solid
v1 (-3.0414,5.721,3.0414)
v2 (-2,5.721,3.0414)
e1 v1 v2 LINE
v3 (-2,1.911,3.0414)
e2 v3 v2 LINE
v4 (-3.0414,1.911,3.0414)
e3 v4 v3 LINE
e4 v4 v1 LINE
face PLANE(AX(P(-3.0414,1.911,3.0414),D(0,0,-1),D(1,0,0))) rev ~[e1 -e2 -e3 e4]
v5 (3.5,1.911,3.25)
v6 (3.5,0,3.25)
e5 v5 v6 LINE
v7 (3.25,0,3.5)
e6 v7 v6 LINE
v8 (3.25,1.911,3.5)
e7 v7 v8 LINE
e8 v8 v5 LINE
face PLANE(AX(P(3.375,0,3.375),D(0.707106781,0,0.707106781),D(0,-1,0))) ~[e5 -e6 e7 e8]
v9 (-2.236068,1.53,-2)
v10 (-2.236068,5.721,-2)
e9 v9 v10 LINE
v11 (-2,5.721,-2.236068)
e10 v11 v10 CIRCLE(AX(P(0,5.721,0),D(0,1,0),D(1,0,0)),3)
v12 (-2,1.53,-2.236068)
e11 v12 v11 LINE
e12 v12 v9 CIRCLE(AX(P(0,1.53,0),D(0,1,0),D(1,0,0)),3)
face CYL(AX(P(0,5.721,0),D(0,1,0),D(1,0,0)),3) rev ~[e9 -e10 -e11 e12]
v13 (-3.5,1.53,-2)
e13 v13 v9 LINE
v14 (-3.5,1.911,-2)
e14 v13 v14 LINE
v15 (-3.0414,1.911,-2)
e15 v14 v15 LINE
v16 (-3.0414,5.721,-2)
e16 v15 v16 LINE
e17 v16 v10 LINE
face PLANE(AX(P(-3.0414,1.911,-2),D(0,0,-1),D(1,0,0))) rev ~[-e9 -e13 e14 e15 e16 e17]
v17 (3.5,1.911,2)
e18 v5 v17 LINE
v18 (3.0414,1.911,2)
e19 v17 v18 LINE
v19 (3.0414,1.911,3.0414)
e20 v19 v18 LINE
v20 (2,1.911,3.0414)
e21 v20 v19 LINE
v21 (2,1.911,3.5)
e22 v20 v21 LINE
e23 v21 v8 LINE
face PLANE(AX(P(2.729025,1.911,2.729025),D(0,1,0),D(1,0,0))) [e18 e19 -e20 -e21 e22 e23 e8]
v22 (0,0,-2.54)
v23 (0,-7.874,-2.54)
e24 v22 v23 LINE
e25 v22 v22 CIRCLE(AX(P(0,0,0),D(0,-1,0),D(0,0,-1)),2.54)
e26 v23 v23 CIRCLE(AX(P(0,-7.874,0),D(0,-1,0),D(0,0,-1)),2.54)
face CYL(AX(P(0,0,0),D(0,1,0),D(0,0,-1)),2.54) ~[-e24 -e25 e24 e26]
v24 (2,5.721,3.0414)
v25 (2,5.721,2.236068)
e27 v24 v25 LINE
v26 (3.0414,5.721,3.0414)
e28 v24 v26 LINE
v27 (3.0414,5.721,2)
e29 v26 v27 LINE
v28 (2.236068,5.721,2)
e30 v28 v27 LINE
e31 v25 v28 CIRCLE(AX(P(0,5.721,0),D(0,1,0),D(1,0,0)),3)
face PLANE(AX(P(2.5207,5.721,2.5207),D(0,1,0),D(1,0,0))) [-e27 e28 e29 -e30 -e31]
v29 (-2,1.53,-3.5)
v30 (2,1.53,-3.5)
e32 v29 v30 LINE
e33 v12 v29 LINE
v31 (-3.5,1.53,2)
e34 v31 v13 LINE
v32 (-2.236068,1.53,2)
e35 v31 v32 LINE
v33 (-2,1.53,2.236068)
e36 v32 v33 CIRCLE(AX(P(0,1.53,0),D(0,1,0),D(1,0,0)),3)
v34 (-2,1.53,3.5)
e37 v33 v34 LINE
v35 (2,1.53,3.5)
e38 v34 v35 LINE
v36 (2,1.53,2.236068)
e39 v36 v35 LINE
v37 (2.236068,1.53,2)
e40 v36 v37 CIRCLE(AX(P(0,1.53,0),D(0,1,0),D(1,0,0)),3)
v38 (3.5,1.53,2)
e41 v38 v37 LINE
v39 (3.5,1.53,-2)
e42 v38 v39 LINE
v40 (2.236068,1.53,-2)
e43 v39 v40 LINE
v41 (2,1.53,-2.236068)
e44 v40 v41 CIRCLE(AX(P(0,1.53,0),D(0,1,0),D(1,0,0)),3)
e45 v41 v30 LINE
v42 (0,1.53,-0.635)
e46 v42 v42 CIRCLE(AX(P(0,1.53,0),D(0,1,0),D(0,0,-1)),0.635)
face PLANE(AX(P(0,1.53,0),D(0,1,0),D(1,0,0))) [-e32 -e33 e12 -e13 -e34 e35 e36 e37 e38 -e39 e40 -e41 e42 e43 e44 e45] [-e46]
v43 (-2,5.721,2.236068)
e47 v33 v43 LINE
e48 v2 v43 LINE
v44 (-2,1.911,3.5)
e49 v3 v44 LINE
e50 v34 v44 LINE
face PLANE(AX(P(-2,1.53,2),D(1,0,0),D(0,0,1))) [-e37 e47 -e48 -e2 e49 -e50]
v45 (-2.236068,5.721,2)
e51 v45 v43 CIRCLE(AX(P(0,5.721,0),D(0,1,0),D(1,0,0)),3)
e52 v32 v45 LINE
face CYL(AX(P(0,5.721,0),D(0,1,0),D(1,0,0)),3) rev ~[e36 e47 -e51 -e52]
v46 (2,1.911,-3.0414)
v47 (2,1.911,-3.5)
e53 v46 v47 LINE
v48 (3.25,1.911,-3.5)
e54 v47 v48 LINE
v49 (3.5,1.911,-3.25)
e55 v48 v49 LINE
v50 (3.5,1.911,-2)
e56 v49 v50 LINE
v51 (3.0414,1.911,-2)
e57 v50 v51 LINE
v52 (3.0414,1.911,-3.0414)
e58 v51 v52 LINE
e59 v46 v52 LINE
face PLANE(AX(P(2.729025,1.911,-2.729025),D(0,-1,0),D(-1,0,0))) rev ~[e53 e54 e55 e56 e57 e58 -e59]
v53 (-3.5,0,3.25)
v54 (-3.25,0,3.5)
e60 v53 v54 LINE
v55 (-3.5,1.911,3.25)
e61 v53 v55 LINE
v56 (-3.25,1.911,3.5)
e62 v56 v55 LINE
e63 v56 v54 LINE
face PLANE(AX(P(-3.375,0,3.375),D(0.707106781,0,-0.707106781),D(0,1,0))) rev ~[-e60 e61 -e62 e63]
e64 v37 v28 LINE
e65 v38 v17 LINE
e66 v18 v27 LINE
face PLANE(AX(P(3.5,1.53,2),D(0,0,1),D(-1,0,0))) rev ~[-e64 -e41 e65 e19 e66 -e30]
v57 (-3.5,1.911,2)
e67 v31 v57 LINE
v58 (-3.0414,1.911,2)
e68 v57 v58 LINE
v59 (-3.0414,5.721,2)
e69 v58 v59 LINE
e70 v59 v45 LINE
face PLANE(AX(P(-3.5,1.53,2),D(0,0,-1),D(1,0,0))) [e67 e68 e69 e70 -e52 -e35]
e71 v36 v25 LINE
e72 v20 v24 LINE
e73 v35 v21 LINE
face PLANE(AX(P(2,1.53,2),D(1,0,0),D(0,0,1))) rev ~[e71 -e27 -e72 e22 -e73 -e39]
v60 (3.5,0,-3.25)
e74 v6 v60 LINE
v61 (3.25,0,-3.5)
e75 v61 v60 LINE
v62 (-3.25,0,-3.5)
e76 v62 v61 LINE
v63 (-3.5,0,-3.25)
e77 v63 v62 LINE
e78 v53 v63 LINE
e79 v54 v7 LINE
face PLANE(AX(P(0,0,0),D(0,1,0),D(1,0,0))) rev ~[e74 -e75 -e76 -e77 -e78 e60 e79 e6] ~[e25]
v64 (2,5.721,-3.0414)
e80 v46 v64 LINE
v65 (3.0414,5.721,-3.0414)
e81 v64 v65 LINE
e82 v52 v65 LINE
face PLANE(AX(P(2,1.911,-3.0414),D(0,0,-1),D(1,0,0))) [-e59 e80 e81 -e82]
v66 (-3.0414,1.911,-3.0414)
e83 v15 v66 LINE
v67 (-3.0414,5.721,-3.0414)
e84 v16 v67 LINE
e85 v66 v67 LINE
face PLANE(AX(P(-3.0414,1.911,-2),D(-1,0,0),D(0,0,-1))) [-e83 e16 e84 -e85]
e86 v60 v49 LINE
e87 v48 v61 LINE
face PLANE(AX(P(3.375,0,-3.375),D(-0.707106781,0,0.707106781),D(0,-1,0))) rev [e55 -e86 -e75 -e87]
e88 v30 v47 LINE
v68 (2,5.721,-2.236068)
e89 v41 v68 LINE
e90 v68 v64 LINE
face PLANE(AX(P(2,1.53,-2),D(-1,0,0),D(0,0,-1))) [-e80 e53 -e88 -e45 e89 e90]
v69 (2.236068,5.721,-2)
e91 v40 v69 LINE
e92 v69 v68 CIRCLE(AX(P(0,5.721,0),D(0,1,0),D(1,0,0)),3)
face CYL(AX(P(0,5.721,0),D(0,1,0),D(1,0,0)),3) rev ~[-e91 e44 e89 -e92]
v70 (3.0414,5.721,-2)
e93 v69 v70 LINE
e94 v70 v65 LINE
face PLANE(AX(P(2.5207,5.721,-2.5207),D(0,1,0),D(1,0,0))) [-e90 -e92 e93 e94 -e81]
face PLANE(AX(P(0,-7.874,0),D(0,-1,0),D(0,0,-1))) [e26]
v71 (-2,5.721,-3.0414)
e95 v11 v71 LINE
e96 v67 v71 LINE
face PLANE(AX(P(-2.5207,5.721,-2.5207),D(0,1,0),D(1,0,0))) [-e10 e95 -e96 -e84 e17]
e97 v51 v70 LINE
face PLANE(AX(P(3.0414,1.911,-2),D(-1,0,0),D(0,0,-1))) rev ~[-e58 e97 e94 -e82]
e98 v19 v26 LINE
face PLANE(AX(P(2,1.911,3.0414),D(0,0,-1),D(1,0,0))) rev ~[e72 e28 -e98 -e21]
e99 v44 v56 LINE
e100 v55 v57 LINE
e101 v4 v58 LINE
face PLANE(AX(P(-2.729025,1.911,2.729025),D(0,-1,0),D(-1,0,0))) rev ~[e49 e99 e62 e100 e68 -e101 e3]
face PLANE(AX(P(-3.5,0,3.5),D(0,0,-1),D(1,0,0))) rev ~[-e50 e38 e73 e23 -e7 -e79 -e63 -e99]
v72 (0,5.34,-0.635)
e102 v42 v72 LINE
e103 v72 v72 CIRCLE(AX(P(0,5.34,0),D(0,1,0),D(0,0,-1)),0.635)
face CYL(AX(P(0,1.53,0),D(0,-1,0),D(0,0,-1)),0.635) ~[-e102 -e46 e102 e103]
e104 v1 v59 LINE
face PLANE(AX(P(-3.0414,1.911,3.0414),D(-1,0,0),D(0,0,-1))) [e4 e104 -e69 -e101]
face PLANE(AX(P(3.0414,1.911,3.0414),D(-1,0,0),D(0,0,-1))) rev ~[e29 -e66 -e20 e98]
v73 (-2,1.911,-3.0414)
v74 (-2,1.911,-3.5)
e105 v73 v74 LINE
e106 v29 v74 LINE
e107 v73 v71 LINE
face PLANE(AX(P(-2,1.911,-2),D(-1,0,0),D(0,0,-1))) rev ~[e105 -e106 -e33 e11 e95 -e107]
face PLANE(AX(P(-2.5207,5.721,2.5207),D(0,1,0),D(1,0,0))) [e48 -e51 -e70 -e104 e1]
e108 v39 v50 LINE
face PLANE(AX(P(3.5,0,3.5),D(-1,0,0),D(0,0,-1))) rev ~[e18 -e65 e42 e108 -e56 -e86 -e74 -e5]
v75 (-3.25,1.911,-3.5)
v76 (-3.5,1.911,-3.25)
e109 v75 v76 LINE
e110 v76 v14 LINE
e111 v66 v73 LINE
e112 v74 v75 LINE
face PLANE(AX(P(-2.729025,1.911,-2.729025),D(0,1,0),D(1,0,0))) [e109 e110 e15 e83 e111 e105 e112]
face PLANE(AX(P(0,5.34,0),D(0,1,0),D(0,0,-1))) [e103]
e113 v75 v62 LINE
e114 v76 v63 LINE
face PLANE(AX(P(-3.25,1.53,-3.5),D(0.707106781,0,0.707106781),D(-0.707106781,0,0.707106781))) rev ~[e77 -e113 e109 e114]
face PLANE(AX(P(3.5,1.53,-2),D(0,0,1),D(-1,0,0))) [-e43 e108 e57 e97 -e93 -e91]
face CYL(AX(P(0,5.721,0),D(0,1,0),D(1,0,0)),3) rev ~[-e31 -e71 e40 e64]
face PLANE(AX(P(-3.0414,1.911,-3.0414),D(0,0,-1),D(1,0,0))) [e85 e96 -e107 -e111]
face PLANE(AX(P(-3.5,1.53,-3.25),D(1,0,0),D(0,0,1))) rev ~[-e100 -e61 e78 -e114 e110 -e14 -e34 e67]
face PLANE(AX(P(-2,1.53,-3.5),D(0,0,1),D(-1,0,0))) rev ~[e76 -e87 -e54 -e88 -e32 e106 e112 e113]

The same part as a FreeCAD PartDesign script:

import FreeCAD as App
import Part
import Sketcher
Q = App.Units.Quantity


def edges_at(feature, points):
    """Names of the edges that pass closest to the given points."""
    edges = feature.Shape.Edges
    near = lambda p: min(range(len(edges)), key=lambda i: edges[i].distToShape(Part.Vertex(*p))[0])
    return sorted({f"Edge{near(p) + 1}" for p in points})

doc = App.newDocument("Part")
body = doc.addObject("PartDesign::Body", "Body")

# Sketch on XZ plane
sketch1 = body.newObject("Sketcher::SketchObject", "Sketch")
sketch1.AttachmentSupport = (doc.getObject("XZ_Plane"), [""])
sketch1.MapMode = "FlatFace"
sketch1.addGeometry(Part.LineSegment(App.Vector(-4, -4, 0), App.Vector(-4, 4, 0)), False)
sketch1.addGeometry(Part.LineSegment(App.Vector(-4, 4, 0), App.Vector(4, 4, 0)), False)
sketch1.addGeometry(Part.LineSegment(App.Vector(4, 4, 0), App.Vector(4, -4, 0)), False)
sketch1.addGeometry(Part.LineSegment(App.Vector(4, -4, 0), App.Vector(-4, -4, 0)), False)
sketch1.addConstraint(Sketcher.Constraint("Coincident", 0, 2, 1, 1))
sketch1.addConstraint(Sketcher.Constraint("Coincident", 1, 2, 2, 1))
sketch1.addConstraint(Sketcher.Constraint("Coincident", 2, 2, 3, 1))
sketch1.addConstraint(Sketcher.Constraint("Coincident", 3, 2, 0, 1))
sketch1.addConstraint(Sketcher.Constraint("Vertical", 0))
sketch1.addConstraint(Sketcher.Constraint("Horizontal", 1))
sketch1.addConstraint(Sketcher.Constraint("Vertical", 2))
sketch1.addConstraint(Sketcher.Constraint("Horizontal", 3))
sketch1.addConstraint(Sketcher.Constraint("Symmetric", 0, 2, 2, 2, -1, 1))
sketch1.addConstraint(Sketcher.Constraint("Equal", 3, 0))
sketch1.addConstraint(Sketcher.Constraint("DistanceX", 1, 1, 1, 2, 7.0))
pad1 = body.newObject("PartDesign::Pad", "Pad")
pad1.Profile = sketch1
pad1.Length = 1.53
pad1.Reversed = True

# Sketch on XZ plane
sketch2 = body.newObject("Sketcher::SketchObject", "Sketch001")
sketch2.AttachmentSupport = (doc.getObject("XZ_Plane"), [""])
sketch2.MapMode = "FlatFace"
sketch2.addGeometry(Part.Circle(App.Vector(0, 0, 0), App.Vector(0, 0, 1), 2.5), False)
sketch2.addConstraint(Sketcher.Constraint("Coincident", 0, 3, -1, 1))
sketch2.addConstraint(Sketcher.Constraint("Diameter", 0, Q("0.2 in")))
pad2 = body.newObject("PartDesign::Pad", "Pad001")
pad2.Profile = sketch2
pad2.Length = Q("0.31 in")

# Sketch on XZ plane
sketch3 = body.newObject("Sketcher::SketchObject", "Sketch002")
sketch3.AttachmentSupport = (doc.getObject("XZ_Plane"), [""])
sketch3.MapMode = "FlatFace"
sketch3.AttachmentOffset = App.Placement(App.Vector(0, 0, -1.53), App.Rotation())
sketch3.addGeometry(Part.Circle(App.Vector(0, 0, 0), App.Vector(0, 0, 1), 0.6), False)
sketch3.addConstraint(Sketcher.Constraint("Coincident", 0, 3, -1, 1))
sketch3.addConstraint(Sketcher.Constraint("Diameter", 0, Q("0.05 in")))
pad3 = body.newObject("PartDesign::Pad", "Pad002")
pad3.Profile = sketch3
pad3.Length = Q("0.15 in")
pad3.Reversed = True
doc.recompute()

chamfer = body.newObject("PartDesign::Chamfer", "Chamfer")
chamfer.Base = (pad3, edges_at(pad3, [
    (3.5, 0.765, 3.5),
    (-3.5, 0.765, 3.5),
    (-3.5, 0.765, -3.5),
    (3.5, 0.765, -3.5),
]))
chamfer.Size = 0.25

# Sketch on XZ plane
sketch4 = body.newObject("Sketcher::SketchObject", "Sketch003")
sketch4.AttachmentSupport = (doc.getObject("XZ_Plane"), [""])
sketch4.MapMode = "FlatFace"
sketch4.AttachmentOffset = App.Placement(App.Vector(0, 0, -1.53), App.Rotation())
sketch4.addGeometry(Part.LineSegment(App.Vector(-3.5, -2, 0), App.Vector(-2, -2, 0)), False)
sketch4.addGeometry(Part.LineSegment(App.Vector(-2, -2, 0), App.Vector(-2, -3.5, 0)), False)
sketch4.addGeometry(Part.LineSegment(App.Vector(-2, -3.5, 0), App.Vector(-3.25, -3.5, 0)), False)
sketch4.addGeometry(Part.LineSegment(App.Vector(-3.25, -3.5, 0), App.Vector(-3.5, -3.25, 0)), False)
sketch4.addGeometry(Part.LineSegment(App.Vector(-3.5, -3.25, 0), App.Vector(-3.5, -2, 0)), False)
sketch4.addGeometry(Part.LineSegment(App.Vector(3.5, -2, 0), App.Vector(3.5, -3.25, 0)), False)
sketch4.addGeometry(Part.LineSegment(App.Vector(3.5, -3.25, 0), App.Vector(3.25, -3.5, 0)), False)
sketch4.addGeometry(Part.LineSegment(App.Vector(3.25, -3.5, 0), App.Vector(2, -3.5, 0)), False)
sketch4.addGeometry(Part.LineSegment(App.Vector(2, -3.5, 0), App.Vector(2, -2, 0)), False)
sketch4.addGeometry(Part.LineSegment(App.Vector(2, -2, 0), App.Vector(3.5, -2, 0)), False)
sketch4.addGeometry(Part.LineSegment(App.Vector(3.5, 2, 0), App.Vector(2, 2, 0)), False)
sketch4.addGeometry(Part.LineSegment(App.Vector(2, 2, 0), App.Vector(2, 3.5, 0)), False)
sketch4.addGeometry(Part.LineSegment(App.Vector(2, 3.5, 0), App.Vector(3.25, 3.5, 0)), False)
sketch4.addGeometry(Part.LineSegment(App.Vector(3.25, 3.5, 0), App.Vector(3.5, 3.25, 0)), False)
sketch4.addGeometry(Part.LineSegment(App.Vector(3.5, 3.25, 0), App.Vector(3.5, 2, 0)), False)
sketch4.addGeometry(Part.LineSegment(App.Vector(-3.5, 2, 0), App.Vector(-3.5, 3.25, 0)), False)
sketch4.addGeometry(Part.LineSegment(App.Vector(-3.5, 3.25, 0), App.Vector(-3.25, 3.5, 0)), False)
sketch4.addGeometry(Part.LineSegment(App.Vector(-3.25, 3.5, 0), App.Vector(-2, 3.5, 0)), False)
sketch4.addGeometry(Part.LineSegment(App.Vector(-2, 3.5, 0), App.Vector(-2, 2, 0)), False)
sketch4.addGeometry(Part.LineSegment(App.Vector(-2, 2, 0), App.Vector(-3.5, 2, 0)), False)
sketch4.addConstraint(Sketcher.Constraint("Coincident", 0, 2, 1, 1))
sketch4.addConstraint(Sketcher.Constraint("Coincident", 1, 2, 2, 1))
sketch4.addConstraint(Sketcher.Constraint("Coincident", 2, 2, 3, 1))
sketch4.addConstraint(Sketcher.Constraint("Coincident", 3, 2, 4, 1))
sketch4.addConstraint(Sketcher.Constraint("Coincident", 4, 2, 0, 1))
sketch4.addConstraint(Sketcher.Constraint("Coincident", 5, 2, 6, 1))
sketch4.addConstraint(Sketcher.Constraint("Coincident", 6, 2, 7, 1))
sketch4.addConstraint(Sketcher.Constraint("Coincident", 7, 2, 8, 1))
sketch4.addConstraint(Sketcher.Constraint("Coincident", 8, 2, 9, 1))
sketch4.addConstraint(Sketcher.Constraint("Coincident", 9, 2, 5, 1))
sketch4.addConstraint(Sketcher.Constraint("Coincident", 10, 2, 11, 1))
sketch4.addConstraint(Sketcher.Constraint("Coincident", 11, 2, 12, 1))
sketch4.addConstraint(Sketcher.Constraint("Coincident", 12, 2, 13, 1))
sketch4.addConstraint(Sketcher.Constraint("Coincident", 13, 2, 14, 1))
sketch4.addConstraint(Sketcher.Constraint("Coincident", 14, 2, 10, 1))
sketch4.addConstraint(Sketcher.Constraint("Coincident", 15, 2, 16, 1))
sketch4.addConstraint(Sketcher.Constraint("Coincident", 16, 2, 17, 1))
sketch4.addConstraint(Sketcher.Constraint("Coincident", 17, 2, 18, 1))
sketch4.addConstraint(Sketcher.Constraint("Coincident", 18, 2, 19, 1))
sketch4.addConstraint(Sketcher.Constraint("Coincident", 19, 2, 15, 1))
sketch4.addConstraint(Sketcher.Constraint("Horizontal", 0))
sketch4.addConstraint(Sketcher.Constraint("Vertical", 1))
sketch4.addConstraint(Sketcher.Constraint("Horizontal", 2))
sketch4.addConstraint(Sketcher.Constraint("Vertical", 4))
sketch4.addConstraint(Sketcher.Constraint("Vertical", 5))
sketch4.addConstraint(Sketcher.Constraint("Horizontal", 7))
sketch4.addConstraint(Sketcher.Constraint("Vertical", 8))
sketch4.addConstraint(Sketcher.Constraint("Horizontal", 9))
sketch4.addConstraint(Sketcher.Constraint("Horizontal", 10))
sketch4.addConstraint(Sketcher.Constraint("Vertical", 11))
sketch4.addConstraint(Sketcher.Constraint("Horizontal", 12))
sketch4.addConstraint(Sketcher.Constraint("Vertical", 14))
sketch4.addConstraint(Sketcher.Constraint("Vertical", 15))
sketch4.addConstraint(Sketcher.Constraint("Horizontal", 17))
sketch4.addConstraint(Sketcher.Constraint("Vertical", 18))
sketch4.addConstraint(Sketcher.Constraint("Horizontal", 19))
sketch4.addConstraint(Sketcher.Constraint("Symmetric", 0, 2, 10, 2, -1, 1))
sketch4.addConstraint(Sketcher.Constraint("Symmetric", 2, 2, 12, 2, -1, 1))
sketch4.addConstraint(Sketcher.Constraint("Symmetric", 3, 2, 13, 2, -1, 1))
sketch4.addConstraint(Sketcher.Constraint("Symmetric", 5, 2, 15, 2, -1, 1))
sketch4.addConstraint(Sketcher.Constraint("Symmetric", 6, 2, 16, 2, -1, 1))
sketch4.addConstraint(Sketcher.Constraint("Symmetric", 8, 2, 18, 2, -1, 1))
sketch4.addConstraint(Sketcher.Constraint("Symmetric", 3, 2, 5, 2, -2))
sketch4.addConstraint(Sketcher.Constraint("Symmetric", 2, 2, 6, 2, -2))
sketch4.addConstraint(Sketcher.Constraint("Symmetric", 0, 2, 8, 2, -2))
sketch4.addConstraint(Sketcher.Constraint("Perpendicular", 3, 6))
sketch4.addConstraint(Sketcher.Constraint("Equal", 19, 1))
sketch4.addConstraint(Sketcher.Constraint("DistanceX", 0, 1, 0, 2, 1.5))
sketch4.addConstraint(Sketcher.Constraint("DistanceX", 2, 2, 2, 1, 1.25))
sketch4.addConstraint(Sketcher.Constraint("DistanceX", 0, 2, -1, 1, 2.0))
sketch4.addConstraint(Sketcher.Constraint("DistanceY", 0, 2, -1, 1, 2.0))
pad4 = body.newObject("PartDesign::Pad", "Pad003")
pad4.Profile = sketch4
pad4.Length = Q("0.015 in")
pad4.Reversed = True

# Sketch on XZ plane
sketch5 = body.newObject("Sketcher::SketchObject", "Sketch004")
sketch5.AttachmentSupport = (doc.getObject("XZ_Plane"), [""])
sketch5.MapMode = "FlatFace"
sketch5.AttachmentOffset = App.Placement(App.Vector(0, 0, -1.911), App.Rotation())
sketch5.addGeometry(Part.LineSegment(App.Vector(-3, -3, 0), App.Vector(-3, -2, 0)), False)
sketch5.addGeometry(Part.LineSegment(App.Vector(-3, -2, 0), App.Vector(-2, -2, 0)), False)
sketch5.addGeometry(Part.LineSegment(App.Vector(-2, -2, 0), App.Vector(-2, -3, 0)), False)
sketch5.addGeometry(Part.LineSegment(App.Vector(-2, -3, 0), App.Vector(-3, -3, 0)), False)
sketch5.addGeometry(Part.LineSegment(App.Vector(2, -3, 0), App.Vector(2, -2, 0)), False)
sketch5.addGeometry(Part.LineSegment(App.Vector(2, -2, 0), App.Vector(3, -2, 0)), False)
sketch5.addGeometry(Part.LineSegment(App.Vector(3, -2, 0), App.Vector(3, -3, 0)), False)
sketch5.addGeometry(Part.LineSegment(App.Vector(3, -3, 0), App.Vector(2, -3, 0)), False)
sketch5.addGeometry(Part.LineSegment(App.Vector(2, 2, 0), App.Vector(2, 3, 0)), False)
sketch5.addGeometry(Part.LineSegment(App.Vector(2, 3, 0), App.Vector(3, 3, 0)), False)
sketch5.addGeometry(Part.LineSegment(App.Vector(3, 3, 0), App.Vector(3, 2, 0)), False)
sketch5.addGeometry(Part.LineSegment(App.Vector(3, 2, 0), App.Vector(2, 2, 0)), False)
sketch5.addGeometry(Part.LineSegment(App.Vector(-3, 2, 0), App.Vector(-3, 3, 0)), False)
sketch5.addGeometry(Part.LineSegment(App.Vector(-3, 3, 0), App.Vector(-2, 3, 0)), False)
sketch5.addGeometry(Part.LineSegment(App.Vector(-2, 3, 0), App.Vector(-2, 2, 0)), False)
sketch5.addGeometry(Part.LineSegment(App.Vector(-2, 2, 0), App.Vector(-3, 2, 0)), False)
sketch5.addConstraint(Sketcher.Constraint("Coincident", 0, 2, 1, 1))
sketch5.addConstraint(Sketcher.Constraint("Coincident", 1, 2, 2, 1))
sketch5.addConstraint(Sketcher.Constraint("Coincident", 2, 2, 3, 1))
sketch5.addConstraint(Sketcher.Constraint("Coincident", 3, 2, 0, 1))
sketch5.addConstraint(Sketcher.Constraint("Coincident", 4, 2, 5, 1))
sketch5.addConstraint(Sketcher.Constraint("Coincident", 5, 2, 6, 1))
sketch5.addConstraint(Sketcher.Constraint("Coincident", 6, 2, 7, 1))
sketch5.addConstraint(Sketcher.Constraint("Coincident", 7, 2, 4, 1))
sketch5.addConstraint(Sketcher.Constraint("Coincident", 8, 2, 9, 1))
sketch5.addConstraint(Sketcher.Constraint("Coincident", 9, 2, 10, 1))
sketch5.addConstraint(Sketcher.Constraint("Coincident", 10, 2, 11, 1))
sketch5.addConstraint(Sketcher.Constraint("Coincident", 11, 2, 8, 1))
sketch5.addConstraint(Sketcher.Constraint("Coincident", 12, 2, 13, 1))
sketch5.addConstraint(Sketcher.Constraint("Coincident", 13, 2, 14, 1))
sketch5.addConstraint(Sketcher.Constraint("Coincident", 14, 2, 15, 1))
sketch5.addConstraint(Sketcher.Constraint("Coincident", 15, 2, 12, 1))
sketch5.addConstraint(Sketcher.Constraint("Vertical", 0))
sketch5.addConstraint(Sketcher.Constraint("Horizontal", 1))
sketch5.addConstraint(Sketcher.Constraint("Vertical", 2))
sketch5.addConstraint(Sketcher.Constraint("Horizontal", 3))
sketch5.addConstraint(Sketcher.Constraint("Vertical", 4))
sketch5.addConstraint(Sketcher.Constraint("Horizontal", 5))
sketch5.addConstraint(Sketcher.Constraint("Vertical", 6))
sketch5.addConstraint(Sketcher.Constraint("Horizontal", 7))
sketch5.addConstraint(Sketcher.Constraint("Vertical", 8))
sketch5.addConstraint(Sketcher.Constraint("Horizontal", 9))
sketch5.addConstraint(Sketcher.Constraint("Vertical", 10))
sketch5.addConstraint(Sketcher.Constraint("Horizontal", 11))
sketch5.addConstraint(Sketcher.Constraint("Vertical", 12))
sketch5.addConstraint(Sketcher.Constraint("Horizontal", 13))
sketch5.addConstraint(Sketcher.Constraint("Vertical", 14))
sketch5.addConstraint(Sketcher.Constraint("Horizontal", 15))
sketch5.addConstraint(Sketcher.Constraint("Symmetric", 2, 2, 8, 2, -1, 1))
sketch5.addConstraint(Sketcher.Constraint("Symmetric", 0, 2, 10, 2, -1, 1))
sketch5.addConstraint(Sketcher.Constraint("Symmetric", 6, 2, 12, 2, -1, 1))
sketch5.addConstraint(Sketcher.Constraint("Symmetric", 4, 2, 14, 2, -1, 1))
sketch5.addConstraint(Sketcher.Constraint("Symmetric", 1, 2, 4, 2, -2))
sketch5.addConstraint(Sketcher.Constraint("Symmetric", 3, 2, 6, 2, -2))
sketch5.addConstraint(Sketcher.Constraint("Equal", 15, 0))
sketch5.addConstraint(Sketcher.Constraint("DistanceX", 1, 1, 1, 2, Q("0.041 in")))
sketch5.addConstraint(Sketcher.Constraint("DistanceX", 0, 2, -1, 1, 3.0414))
sketch5.addConstraint(Sketcher.Constraint("DistanceY", 0, 2, -1, 1, 2.0))
pad5 = body.newObject("PartDesign::Pad", "Pad004")
pad5.Profile = sketch5
pad5.Length = Q("0.15 in")
pad5.Reversed = True

# Sketch on XZ plane
sketch6 = body.newObject("Sketcher::SketchObject", "Sketch005")
sketch6.AttachmentSupport = (doc.getObject("XZ_Plane"), [""])
sketch6.MapMode = "FlatFace"
sketch6.AttachmentOffset = App.Placement(App.Vector(0, 0, -5.721), App.Rotation())
sketch6.addGeometry(Part.Circle(App.Vector(0, 0, 0), App.Vector(0, 0, 1), 3), False)
sketch6.addGeometry(Part.Circle(App.Vector(0, 0, 0), App.Vector(0, 0, 1), 2.5), False)
sketch6.addConstraint(Sketcher.Constraint("Coincident", 0, 3, -1, 1))
sketch6.addConstraint(Sketcher.Constraint("Coincident", 1, 3, -1, 1))
sketch6.addConstraint(Sketcher.Constraint("Diameter", 0, 6.0))
sketch6.addConstraint(Sketcher.Constraint("Diameter", 1, 5.1))
pocket1 = body.newObject("PartDesign::Pocket", "Pocket")
pocket1.Profile = sketch6
pocket1.Length = Q("0.165 in")
pocket1.Reversed = True

doc.recompute()
